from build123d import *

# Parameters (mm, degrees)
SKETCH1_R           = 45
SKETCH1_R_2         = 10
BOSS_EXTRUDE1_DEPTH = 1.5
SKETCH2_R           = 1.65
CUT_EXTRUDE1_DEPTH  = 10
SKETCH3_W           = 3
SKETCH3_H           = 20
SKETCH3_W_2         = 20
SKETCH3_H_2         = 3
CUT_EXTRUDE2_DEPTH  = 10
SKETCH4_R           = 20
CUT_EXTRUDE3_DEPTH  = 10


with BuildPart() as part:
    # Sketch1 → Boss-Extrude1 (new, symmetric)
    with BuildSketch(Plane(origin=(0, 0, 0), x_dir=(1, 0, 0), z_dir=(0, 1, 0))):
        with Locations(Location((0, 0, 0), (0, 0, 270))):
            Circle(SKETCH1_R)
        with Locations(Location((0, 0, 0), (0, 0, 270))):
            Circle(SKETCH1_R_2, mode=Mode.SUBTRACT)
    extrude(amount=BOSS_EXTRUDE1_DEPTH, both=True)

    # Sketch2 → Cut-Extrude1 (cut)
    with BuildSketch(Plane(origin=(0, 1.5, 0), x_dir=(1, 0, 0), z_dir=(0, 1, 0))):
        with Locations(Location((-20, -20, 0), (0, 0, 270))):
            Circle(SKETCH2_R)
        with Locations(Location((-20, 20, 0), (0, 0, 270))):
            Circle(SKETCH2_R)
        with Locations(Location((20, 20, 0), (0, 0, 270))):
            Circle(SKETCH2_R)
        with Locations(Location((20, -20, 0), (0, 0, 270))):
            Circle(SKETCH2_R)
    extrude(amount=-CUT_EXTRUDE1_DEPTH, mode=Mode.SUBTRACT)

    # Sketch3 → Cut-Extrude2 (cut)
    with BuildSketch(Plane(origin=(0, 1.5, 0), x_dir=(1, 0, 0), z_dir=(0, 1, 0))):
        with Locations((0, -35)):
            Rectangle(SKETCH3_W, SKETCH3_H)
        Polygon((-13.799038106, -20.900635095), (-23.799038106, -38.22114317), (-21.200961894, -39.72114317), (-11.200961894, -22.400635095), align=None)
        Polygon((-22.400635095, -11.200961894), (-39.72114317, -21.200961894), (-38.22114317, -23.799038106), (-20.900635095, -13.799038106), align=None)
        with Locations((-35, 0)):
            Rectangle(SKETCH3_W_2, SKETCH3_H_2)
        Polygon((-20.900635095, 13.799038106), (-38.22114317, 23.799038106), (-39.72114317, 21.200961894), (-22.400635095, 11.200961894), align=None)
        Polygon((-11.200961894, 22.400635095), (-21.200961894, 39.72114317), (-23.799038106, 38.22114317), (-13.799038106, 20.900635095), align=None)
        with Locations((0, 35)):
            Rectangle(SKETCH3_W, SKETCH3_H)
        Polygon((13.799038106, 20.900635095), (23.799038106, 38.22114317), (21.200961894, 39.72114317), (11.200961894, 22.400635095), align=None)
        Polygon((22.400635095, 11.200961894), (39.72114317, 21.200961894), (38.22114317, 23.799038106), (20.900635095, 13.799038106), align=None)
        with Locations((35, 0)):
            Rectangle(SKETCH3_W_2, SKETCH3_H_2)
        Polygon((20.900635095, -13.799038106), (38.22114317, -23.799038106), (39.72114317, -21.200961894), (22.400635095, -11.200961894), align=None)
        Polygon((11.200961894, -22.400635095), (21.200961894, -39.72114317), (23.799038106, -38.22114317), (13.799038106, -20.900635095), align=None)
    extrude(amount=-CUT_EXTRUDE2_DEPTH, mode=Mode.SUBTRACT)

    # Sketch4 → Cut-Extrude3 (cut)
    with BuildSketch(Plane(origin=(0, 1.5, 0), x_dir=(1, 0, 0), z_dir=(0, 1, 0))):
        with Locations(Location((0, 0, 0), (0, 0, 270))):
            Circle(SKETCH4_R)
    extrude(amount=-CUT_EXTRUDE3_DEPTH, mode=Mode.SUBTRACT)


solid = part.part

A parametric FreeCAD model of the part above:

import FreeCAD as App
import Part
import Sketcher

V = App.Vector
Q = App.Units.Quantity

doc = App.newDocument("Part")
params = doc.addObject("Spreadsheet::Sheet", "Params")
for row, (alias, value) in enumerate([
    ("sketch1_diameter", "90 mm"),
    ("sketch1_diameter2", "20 mm"),
    ("pad1_length", "3 mm"),
    ("sketch2_diameter", "3.3 mm"),
    ("pocket1_length", "10 mm"),
    ("sketch3_width", "3 mm"),
    ("sketch3_width2", "20 mm"),
    ("sketch3_length", "20 mm"),
    ("sketch3_length2", "3 mm"),
    ("pocket2_length", "10 mm"),
    ("sketch4_diameter", "40 mm"),
    ("pocket3_length", "10 mm"),
], start=1):
    params.set(f"A{row}", alias)
    params.set(f"B{row}", "=" + value)
    params.setAlias(f"B{row}", alias)

body = doc.addObject("PartDesign::Body", "Body")

# Sketch on XZ plane
sketch1 = doc.addObject("Sketcher::SketchObject", "Sketch")
body.addObject(sketch1)
sketch1.AttachmentSupport = (doc.XZ_Plane, [""])
sketch1.MapMode = "FlatFace"
sketch1.addGeometry(Part.Circle(V(0, 0, 0), V(0, 0, 1), 45), False)
sketch1.addGeometry(Part.Circle(V(0, 0, 0), V(0, 0, 1), 10), False)
sketch1.addConstraint(Sketcher.Constraint("Coincident", 0, 3, -1, 1))
sketch1.addConstraint(Sketcher.Constraint("Coincident", 1, 3, -1, 1))
sketch1.addConstraint(Sketcher.Constraint("Diameter", 0, 90.0))
sketch1.addConstraint(Sketcher.Constraint("Diameter", 1, 20.0))
sketch1.setExpression("Constraints[2]", "Params.sketch1_diameter")
sketch1.setExpression("Constraints[3]", "Params.sketch1_diameter2")
pad1 = doc.addObject("PartDesign::Pad", "Pad")
body.addObject(pad1)
pad1.Profile = sketch1
pad1.setExpression("Length", "Params.pad1_length")
pad1.Midplane = True

# Sketch on XZ plane
sketch2 = doc.addObject("Sketcher::SketchObject", "Sketch001")
body.addObject(sketch2)
sketch2.AttachmentSupport = (doc.XZ_Plane, [""])
sketch2.MapMode = "FlatFace"
sketch2.AttachmentOffset = App.Placement(V(0, 0, -1.5), App.Rotation())
sketch2.addGeometry(Part.Circle(V(-20, 20, 0), V(0, 0, 1), 1.65), False)
sketch2.addGeometry(Part.Circle(V(-20, -20, 0), V(0, 0, 1), 1.65), False)
sketch2.addGeometry(Part.Circle(V(20, -20, 0), V(0, 0, 1), 1.65), False)
sketch2.addGeometry(Part.Circle(V(20, 20, 0), V(0, 0, 1), 1.65), False)
sketch2.addConstraint(Sketcher.Constraint("Equal", 0, 1))
sketch2.addConstraint(Sketcher.Constraint("Equal", 1, 2))
sketch2.addConstraint(Sketcher.Constraint("Equal", 2, 3))
sketch2.addConstraint(Sketcher.Constraint("Symmetric", 0, 3, 2, 3, -1, 1))
sketch2.addConstraint(Sketcher.Constraint("Symmetric", 1, 3, 3, 3, -1, 1))
sketch2.addConstraint(Sketcher.Constraint("Symmetric", 1, 3, 2, 3, -2))
sketch2.addConstraint(Sketcher.Constraint("Diameter", 0, 3.3))
sketch2.addConstraint(Sketcher.Constraint("DistanceX", 0, 3, -1, 1, 20.0))
sketch2.addConstraint(Sketcher.Constraint("DistanceY", -1, 1, 0, 3, 20.0))
sketch2.setExpression("Constraints[6]", "Params.sketch2_diameter")
pocket1 = doc.addObject("PartDesign::Pocket", "Pocket")
body.addObject(pocket1)
pocket1.Profile = sketch2
pocket1.setExpression("Length", "Params.pocket1_length")
pocket1.Reversed = True

# Sketch on XZ plane
sketch3 = doc.addObject("Sketcher::SketchObject", "Sketch002")
body.addObject(sketch3)
sketch3.AttachmentSupport = (doc.XZ_Plane, [""])
sketch3.MapMode = "FlatFace"
sketch3.AttachmentOffset = App.Placement(V(0, 0, -1.5), App.Rotation())
sketch3.addGeometry(Part.LineSegment(V(-1.5, 25, 0), V(-1.5, 45, 0)), False)
sketch3.addGeometry(Part.LineSegment(V(-1.5, 45, 0), V(1.5, 45, 0)), False)
sketch3.addGeometry(Part.LineSegment(V(1.5, 45, 0), V(1.5, 25, 0)), False)
sketch3.addGeometry(Part.LineSegment(V(1.5, 25, 0), V(-1.5, 25, 0)), False)
sketch3.addGeometry(Part.LineSegment(V(-13.799038, 20.900635, 0), V(-23.799038, 38.221143, 0)), False)
sketch3.addGeometry(Part.LineSegment(V(-23.799038, 38.221143, 0), V(-21.200962, 39.721143, 0)), False)
sketch3.addGeometry(Part.LineSegment(V(-21.200962, 39.721143, 0), V(-11.200962, 22.400635, 0)), False)
sketch3.addGeometry(Part.LineSegment(V(-11.200962, 22.400635, 0), V(-13.799038, 20.900635, 0)), False)
sketch3.addGeometry(Part.LineSegment(V(-22.400635, 11.200962, 0), V(-39.721143, 21.200962, 0)), False)
sketch3.addGeometry(Part.LineSegment(V(-39.721143, 21.200962, 0), V(-38.221143, 23.799038, 0)), False)
sketch3.addGeometry(Part.LineSegment(V(-38.221143, 23.799038, 0), V(-20.900635, 13.799038, 0)), False)
sketch3.addGeometry(Part.LineSegment(V(-20.900635, 13.799038, 0), V(-22.400635, 11.200962, 0)), False)
sketch3.addGeometry(Part.LineSegment(V(-45, -1.5, 0), V(-45, 1.5, 0)), False)
sketch3.addGeometry(Part.LineSegment(V(-45, 1.5, 0), V(-25, 1.5, 0)), False)
sketch3.addGeometry(Part.LineSegment(V(-25, 1.5, 0), V(-25, -1.5, 0)), False)
sketch3.addGeometry(Part.LineSegment(V(-25, -1.5, 0), V(-45, -1.5, 0)), False)
sketch3.addGeometry(Part.LineSegment(V(-20.900635, -13.799038, 0), V(-38.221143, -23.799038, 0)), False)
sketch3.addGeometry(Part.LineSegment(V(-38.221143, -23.799038, 0), V(-39.721143, -21.200962, 0)), False)
sketch3.addGeometry(Part.LineSegment(V(-39.721143, -21.200962, 0), V(-22.400635, -11.200962, 0)), False)
sketch3.addGeometry(Part.LineSegment(V(-22.400635, -11.200962, 0), V(-20.900635, -13.799038, 0)), False)
sketch3.addGeometry(Part.LineSegment(V(-11.200962, -22.400635, 0), V(-21.200962, -39.721143, 0)), False)
sketch3.addGeometry(Part.LineSegment(V(-21.200962, -39.721143, 0), V(-23.799038, -38.221143, 0)), False)
sketch3.addGeometry(Part.LineSegment(V(-23.799038, -38.221143, 0), V(-13.799038, -20.900635, 0)), False)
sketch3.addGeometry(Part.LineSegment(V(-13.799038, -20.900635, 0), V(-11.200962, -22.400635, 0)), False)
sketch3.addGeometry(Part.LineSegment(V(-1.5, -45, 0), V(-1.5, -25, 0)), False)
sketch3.addGeometry(Part.LineSegment(V(-1.5, -25, 0), V(1.5, -25, 0)), False)
sketch3.addGeometry(Part.LineSegment(V(1.5, -25, 0), V(1.5, -45, 0)), False)
sketch3.addGeometry(Part.LineSegment(V(1.5, -45, 0), V(-1.5, -45, 0)), False)
sketch3.addGeometry(Part.LineSegment(V(13.799038, -20.900635, 0), V(23.799038, -38.221143, 0)), False)
sketch3.addGeometry(Part.LineSegment(V(23.799038, -38.221143, 0), V(21.200962, -39.721143, 0)), False)
sketch3.addGeometry(Part.LineSegment(V(21.200962, -39.721143, 0), V(11.200962, -22.400635, 0)), False)
sketch3.addGeometry(Part.LineSegment(V(11.200962, -22.400635, 0), V(13.799038, -20.900635, 0)), False)
sketch3.addGeometry(Part.LineSegment(V(22.400635, -11.200962, 0), V(39.721143, -21.200962, 0)), False)
sketch3.addGeometry(Part.LineSegment(V(39.721143, -21.200962, 0), V(38.221143, -23.799038, 0)), False)
sketch3.addGeometry(Part.LineSegment(V(38.221143, -23.799038, 0), V(20.900635, -13.799038, 0)), False)
sketch3.addGeometry(Part.LineSegment(V(20.900635, -13.799038, 0), V(22.400635, -11.200962, 0)), False)
sketch3.addGeometry(Part.LineSegment(V(25, -1.5, 0), V(25, 1.5, 0)), False)
sketch3.addGeometry(Part.LineSegment(V(25, 1.5, 0), V(45, 1.5, 0)), False)
sketch3.addGeometry(Part.LineSegment(V(45, 1.5, 0), V(45, -1.5, 0)), False)
sketch3.addGeometry(Part.LineSegment(V(45, -1.5, 0), V(25, -1.5, 0)), False)
sketch3.addGeometry(Part.LineSegment(V(20.900635, 13.799038, 0), V(38.221143, 23.799038, 0)), False)
sketch3.addGeometry(Part.LineSegment(V(38.221143, 23.799038, 0), V(39.721143, 21.200962, 0)), False)
sketch3.addGeometry(Part.LineSegment(V(39.721143, 21.200962, 0), V(22.400635, 11.200962, 0)), False)
sketch3.addGeometry(Part.LineSegment(V(22.400635, 11.200962, 0), V(20.900635, 13.799038, 0)), False)
sketch3.addGeometry(Part.LineSegment(V(11.200962, 22.400635, 0), V(21.200962, 39.721143, 0)), False)
sketch3.addGeometry(Part.LineSegment(V(21.200962, 39.721143, 0), V(23.799038, 38.221143, 0)), False)
sketch3.addGeometry(Part.LineSegment(V(23.799038, 38.221143, 0), V(13.799038, 20.900635, 0)), False)
sketch3.addGeometry(Part.LineSegment(V(13.799038, 20.900635, 0), V(11.200962, 22.400635, 0)), False)
sketch3.addConstraint(Sketcher.Constraint("Coincident", 0, 2, 1, 1))
sketch3.addConstraint(Sketcher.Constraint("Coincident", 1, 2, 2, 1))
sketch3.addConstraint(Sketcher.Constraint("Coincident", 2, 2, 3, 1))
sketch3.addConstraint(Sketcher.Constraint("Coincident", 3, 2, 0, 1))
sketch3.addConstraint(Sketcher.Constraint("Coincident", 4, 2, 5, 1))
sketch3.addConstraint(Sketcher.Constraint("Coincident", 5, 2, 6, 1))
sketch3.addConstraint(Sketcher.Constraint("Coincident", 6, 2, 7, 1))
sketch3.addConstraint(Sketcher.Constraint("Coincident", 7, 2, 4, 1))
sketch3.addConstraint(Sketcher.Constraint("Coincident", 8, 2, 9, 1))
sketch3.addConstraint(Sketcher.Constraint("Coincident", 9, 2, 10, 1))
sketch3.addConstraint(Sketcher.Constraint("Coincident", 10, 2, 11, 1))
sketch3.addConstraint(Sketcher.Constraint("Coincident", 11, 2, 8, 1))
sketch3.addConstraint(Sketcher.Constraint("Coincident", 12, 2, 13, 1))
sketch3.addConstraint(Sketcher.Constraint("Coincident", 13, 2, 14, 1))
sketch3.addConstraint(Sketcher.Constraint("Coincident", 14, 2, 15, 1))
sketch3.addConstraint(Sketcher.Constraint("Coincident", 15, 2, 12, 1))
sketch3.addConstraint(Sketcher.Constraint("Coincident", 16, 2, 17, 1))
sketch3.addConstraint(Sketcher.Constraint("Coincident", 17, 2, 18, 1))
sketch3.addConstraint(Sketcher.Constraint("Coincident", 18, 2, 19, 1))
sketch3.addConstraint(Sketcher.Constraint("Coincident", 19, 2, 16, 1))
sketch3.addConstraint(Sketcher.Constraint("Coincident", 20, 2, 21, 1))
sketch3.addConstraint(Sketcher.Constraint("Coincident", 21, 2, 22, 1))
sketch3.addConstraint(Sketcher.Constraint("Coincident", 22, 2, 23, 1))
sketch3.addConstraint(Sketcher.Constraint("Coincident", 23, 2, 20, 1))
sketch3.addConstraint(Sketcher.Constraint("Coincident", 24, 2, 25, 1))
sketch3.addConstraint(Sketcher.Constraint("Coincident", 25, 2, 26, 1))
sketch3.addConstraint(Sketcher.Constraint("Coincident", 26, 2, 27, 1))
sketch3.addConstraint(Sketcher.Constraint("Coincident", 27, 2, 24, 1))
sketch3.addConstraint(Sketcher.Constraint("Coincident", 28, 2, 29, 1))
sketch3.addConstraint(Sketcher.Constraint("Coincident", 29, 2, 30, 1))
sketch3.addConstraint(Sketcher.Constraint("Coincident", 30, 2, 31, 1))
sketch3.addConstraint(Sketcher.Constraint("Coincident", 31, 2, 28, 1))
sketch3.addConstraint(Sketcher.Constraint("Coincident", 32, 2, 33, 1))
sketch3.addConstraint(Sketcher.Constraint("Coincident", 33, 2, 34, 1))
sketch3.addConstraint(Sketcher.Constraint("Coincident", 34, 2, 35, 1))
sketch3.addConstraint(Sketcher.Constraint("Coincident", 35, 2, 32, 1))
sketch3.addConstraint(Sketcher.Constraint("Coincident", 36, 2, 37, 1))
sketch3.addConstraint(Sketcher.Constraint("Coincident", 37, 2, 38, 1))
sketch3.addConstraint(Sketcher.Constraint("Coincident", 38, 2, 39, 1))
sketch3.addConstraint(Sketcher.Constraint("Coincident", 39, 2, 36, 1))
sketch3.addConstraint(Sketcher.Constraint("Coincident", 40, 2, 41, 1))
sketch3.addConstraint(Sketcher.Constraint("Coincident", 41, 2, 42, 1))
sketch3.addConstraint(Sketcher.Constraint("Coincident", 42, 2, 43, 1))
sketch3.addConstraint(Sketcher.Constraint("Coincident", 43, 2, 40, 1))
sketch3.addConstraint(Sketcher.Constraint("Coincident", 44, 2, 45, 1))
sketch3.addConstraint(Sketcher.Constraint("Coincident", 45, 2, 46, 1))
sketch3.addConstraint(Sketcher.Constraint("Coincident", 46, 2, 47, 1))
sketch3.addConstraint(Sketcher.Constraint("Coincident", 47, 2, 44, 1))
sketch3.addConstraint(Sketcher.Constraint("Vertical", 0))
sketch3.addConstraint(Sketcher.Constraint("Horizontal", 1))
sketch3.addConstraint(Sketcher.Constraint("Vertical", 2))
sketch3.addConstraint(Sketcher.Constraint("Horizontal", 3))
sketch3.addConstraint(Sketcher.Constraint("Vertical", 12))
sketch3.addConstraint(Sketcher.Constraint("Horizontal", 13))
sketch3.addConstraint(Sketcher.Constraint("Vertical", 14))
sketch3.addConstraint(Sketcher.Constraint("Horizontal", 15))
sketch3.addConstraint(Sketcher.Constraint("Vertical", 24))
sketch3.addConstraint(Sketcher.Constraint("Horizontal", 25))
sketch3.addConstraint(Sketcher.Constraint("Vertical", 26))
sketch3.addConstraint(Sketcher.Constraint("Horizontal", 27))
sketch3.addConstraint(Sketcher.Constraint("Vertical", 36))
sketch3.addConstraint(Sketcher.Constraint("Horizontal", 37))
sketch3.addConstraint(Sketcher.Constraint("Vertical", 38))
sketch3.addConstraint(Sketcher.Constraint("Horizontal", 39))
sketch3.addConstraint(Sketcher.Constraint("Symmetric", 2, 2, 24, 2, -1, 1))
sketch3.addConstraint(Sketcher.Constraint("Symmetric", 0, 2, 26, 2, -1, 1))
sketch3.addConstraint(Sketcher.Constraint("Symmetric", 4, 2, 28, 2, -1, 1))
sketch3.addConstraint(Sketcher.Constraint("Symmetric", 5, 2, 29, 2, -1, 1))
sketch3.addConstraint(Sketcher.Constraint("Symmetric", 6, 2, 30, 2, -1, 1))
sketch3.addConstraint(Sketcher.Constraint("Symmetric", 7, 2, 31, 2, -1, 1))
sketch3.addConstraint(Sketcher.Constraint("Symmetric", 8, 2, 32, 2, -1, 1))
sketch3.addConstraint(Sketcher.Constraint("Symmetric", 9, 2, 33, 2, -1, 1))
sketch3.addConstraint(Sketcher.Constraint("Symmetric", 10, 2, 34, 2, -1, 1))
sketch3.addConstraint(Sketcher.Constraint("Symmetric", 11, 2, 35, 2, -1, 1))
sketch3.addConstraint(Sketcher.Constraint("Symmetric", 14, 2, 36, 2, -1, 1))
sketch3.addConstraint(Sketcher.Constraint("Symmetric", 12, 2, 38, 2, -1, 1))
sketch3.addConstraint(Sketcher.Constraint("Symmetric", 16, 2, 40, 2, -1, 1))
sketch3.addConstraint(Sketcher.Constraint("Symmetric", 17, 2, 41, 2, -1, 1))
sketch3.addConstraint(Sketcher.Constraint("Symmetric", 18, 2, 42, 2, -1, 1))
sketch3.addConstraint(Sketcher.Constraint("Symmetric", 19, 2, 43, 2, -1, 1))
sketch3.addConstraint(Sketcher.Constraint("Symmetric", 20, 2, 44, 2, -1, 1))
sketch3.addConstraint(Sketcher.Constraint("Symmetric", 21, 2, 45, 2, -1, 1))
sketch3.addConstraint(Sketcher.Constraint("Symmetric", 22, 2, 46, 2, -1, 1))
sketch3.addConstraint(Sketcher.Constraint("Symmetric", 23, 2, 47, 2, -1, 1))
sketch3.addConstraint(Sketcher.Constraint("Symmetric", 21, 2, 28, 2, -2))
sketch3.addConstraint(Sketcher.Constraint("Symmetric", 20, 2, 29, 2, -2))
sketch3.addConstraint(Sketcher.Constraint("Symmetric", 23, 2, 30, 2, -2))
sketch3.addConstraint(Sketcher.Constraint("Symmetric", 22, 2, 31, 2, -2))
sketch3.addConstraint(Sketcher.Constraint("Symmetric", 17, 2, 32, 2, -2))
sketch3.addConstraint(Sketcher.Constraint("Symmetric", 16, 2, 33, 2, -2))
sketch3.addConstraint(Sketcher.Constraint("Symmetric", 19, 2, 34, 2, -2))
sketch3.addConstraint(Sketcher.Constraint("Symmetric", 18, 2, 35, 2, -2))
sketch3.addConstraint(Sketcher.Constraint("Perpendicular", 4, 5))
sketch3.addConstraint(Sketcher.Constraint("Perpendicular", 5, 6))
sketch3.addConstraint(Sketcher.Constraint("Perpendicular", 6, 7))
sketch3.addConstraint(Sketcher.Constraint("Perpendicular", 8, 9))
sketch3.addConstraint(Sketcher.Constraint("Perpendicular", 9, 10))
sketch3.addConstraint(Sketcher.Constraint("Perpendicular", 10, 11))
sketch3.addConstraint(Sketcher.Constraint("Parallel", 7, 16))
sketch3.addConstraint(Sketcher.Constraint("Horizontal", 13, 2, 36, 2))
sketch3.addConstraint(Sketcher.Constraint("Vertical", 3, 2, 24, 2))
sketch3.addConstraint(Sketcher.Constraint("Equal", 39, 0))
sketch3.addConstraint(Sketcher.Constraint("Equal", 27, 12))
sketch3.addConstraint(Sketcher.Constraint("Equal", 6, 8))
sketch3.addConstraint(Sketcher.Constraint("Equal", 7, 9))
sketch3.addConstraint(Sketcher.Constraint("DistanceX", 1, 1, 1, 2, 3.0))
sketch3.addConstraint(Sketcher.Constraint("DistanceX", 13, 1, 13, 2, 20.0))
sketch3.addConstraint(Sketcher.Constraint("Angle", 4, Q("120 deg")))
sketch3.addConstraint(Sketcher.Constraint("Distance", 4, 20.0))
sketch3.addConstraint(Sketcher.Constraint("Distance", 5, 3.0))
sketch3.addConstraint(Sketcher.Constraint("DistanceY", -1, 1, 0, 2, 45.0))
sketch3.addConstraint(Sketcher.Constraint("DistanceX", 12, 2, -1, 1, 45.0))
sketch3.addConstraint(Sketcher.Constraint("DistanceY", 16, 2, 11, 2, 35.0))
sketch3.addConstraint(Sketcher.Constraint("DistanceX", 23, 2, 28, 2, 35.0))
sketch3.addConstraint(Sketcher.Constraint("DistanceY", 8, 2, 4, 2, 17.020181))
sketch3.addConstraint(Sketcher.Constraint("DistanceX", 8, 2, 5, 2, 18.520181))
sketch3.setExpression("Constraints[105]", "Params.sketch3_width")
sketch3.setExpression("Constraints[106]", "Params.sketch3_width2")
sketch3.setExpression("Constraints[108]", "Params.sketch3_length")
sketch3.setExpression("Constraints[109]", "Params.sketch3_length2")
pocket2 = doc.addObject("PartDesign::Pocket", "Pocket001")
body.addObject(pocket2)
pocket2.Profile = sketch3
pocket2.setExpression("Length", "Params.pocket2_length")
pocket2.Reversed = True

# Sketch on XZ plane
sketch4 = doc.addObject("Sketcher::SketchObject", "Sketch003")
body.addObject(sketch4)
sketch4.AttachmentSupport = (doc.XZ_Plane, [""])
sketch4.MapMode = "FlatFace"
sketch4.AttachmentOffset = App.Placement(V(0, 0, -1.5), App.Rotation())
sketch4.addGeometry(Part.Circle(V(0, 0, 0), V(0, 0, 1), 20), False)
sketch4.addConstraint(Sketcher.Constraint("Coincident", 0, 3, -1, 1))
sketch4.addConstraint(Sketcher.Constraint("Diameter", 0, 40.0))
sketch4.setExpression("Constraints[1]", "Params.sketch4_diameter")
pocket3 = doc.addObject("PartDesign::Pocket", "Pocket002")
body.addObject(pocket3)
pocket3.Profile = sketch4
pocket3.setExpression("Length", "Params.pocket3_length")
pocket3.Reversed = True

doc.recompute()
